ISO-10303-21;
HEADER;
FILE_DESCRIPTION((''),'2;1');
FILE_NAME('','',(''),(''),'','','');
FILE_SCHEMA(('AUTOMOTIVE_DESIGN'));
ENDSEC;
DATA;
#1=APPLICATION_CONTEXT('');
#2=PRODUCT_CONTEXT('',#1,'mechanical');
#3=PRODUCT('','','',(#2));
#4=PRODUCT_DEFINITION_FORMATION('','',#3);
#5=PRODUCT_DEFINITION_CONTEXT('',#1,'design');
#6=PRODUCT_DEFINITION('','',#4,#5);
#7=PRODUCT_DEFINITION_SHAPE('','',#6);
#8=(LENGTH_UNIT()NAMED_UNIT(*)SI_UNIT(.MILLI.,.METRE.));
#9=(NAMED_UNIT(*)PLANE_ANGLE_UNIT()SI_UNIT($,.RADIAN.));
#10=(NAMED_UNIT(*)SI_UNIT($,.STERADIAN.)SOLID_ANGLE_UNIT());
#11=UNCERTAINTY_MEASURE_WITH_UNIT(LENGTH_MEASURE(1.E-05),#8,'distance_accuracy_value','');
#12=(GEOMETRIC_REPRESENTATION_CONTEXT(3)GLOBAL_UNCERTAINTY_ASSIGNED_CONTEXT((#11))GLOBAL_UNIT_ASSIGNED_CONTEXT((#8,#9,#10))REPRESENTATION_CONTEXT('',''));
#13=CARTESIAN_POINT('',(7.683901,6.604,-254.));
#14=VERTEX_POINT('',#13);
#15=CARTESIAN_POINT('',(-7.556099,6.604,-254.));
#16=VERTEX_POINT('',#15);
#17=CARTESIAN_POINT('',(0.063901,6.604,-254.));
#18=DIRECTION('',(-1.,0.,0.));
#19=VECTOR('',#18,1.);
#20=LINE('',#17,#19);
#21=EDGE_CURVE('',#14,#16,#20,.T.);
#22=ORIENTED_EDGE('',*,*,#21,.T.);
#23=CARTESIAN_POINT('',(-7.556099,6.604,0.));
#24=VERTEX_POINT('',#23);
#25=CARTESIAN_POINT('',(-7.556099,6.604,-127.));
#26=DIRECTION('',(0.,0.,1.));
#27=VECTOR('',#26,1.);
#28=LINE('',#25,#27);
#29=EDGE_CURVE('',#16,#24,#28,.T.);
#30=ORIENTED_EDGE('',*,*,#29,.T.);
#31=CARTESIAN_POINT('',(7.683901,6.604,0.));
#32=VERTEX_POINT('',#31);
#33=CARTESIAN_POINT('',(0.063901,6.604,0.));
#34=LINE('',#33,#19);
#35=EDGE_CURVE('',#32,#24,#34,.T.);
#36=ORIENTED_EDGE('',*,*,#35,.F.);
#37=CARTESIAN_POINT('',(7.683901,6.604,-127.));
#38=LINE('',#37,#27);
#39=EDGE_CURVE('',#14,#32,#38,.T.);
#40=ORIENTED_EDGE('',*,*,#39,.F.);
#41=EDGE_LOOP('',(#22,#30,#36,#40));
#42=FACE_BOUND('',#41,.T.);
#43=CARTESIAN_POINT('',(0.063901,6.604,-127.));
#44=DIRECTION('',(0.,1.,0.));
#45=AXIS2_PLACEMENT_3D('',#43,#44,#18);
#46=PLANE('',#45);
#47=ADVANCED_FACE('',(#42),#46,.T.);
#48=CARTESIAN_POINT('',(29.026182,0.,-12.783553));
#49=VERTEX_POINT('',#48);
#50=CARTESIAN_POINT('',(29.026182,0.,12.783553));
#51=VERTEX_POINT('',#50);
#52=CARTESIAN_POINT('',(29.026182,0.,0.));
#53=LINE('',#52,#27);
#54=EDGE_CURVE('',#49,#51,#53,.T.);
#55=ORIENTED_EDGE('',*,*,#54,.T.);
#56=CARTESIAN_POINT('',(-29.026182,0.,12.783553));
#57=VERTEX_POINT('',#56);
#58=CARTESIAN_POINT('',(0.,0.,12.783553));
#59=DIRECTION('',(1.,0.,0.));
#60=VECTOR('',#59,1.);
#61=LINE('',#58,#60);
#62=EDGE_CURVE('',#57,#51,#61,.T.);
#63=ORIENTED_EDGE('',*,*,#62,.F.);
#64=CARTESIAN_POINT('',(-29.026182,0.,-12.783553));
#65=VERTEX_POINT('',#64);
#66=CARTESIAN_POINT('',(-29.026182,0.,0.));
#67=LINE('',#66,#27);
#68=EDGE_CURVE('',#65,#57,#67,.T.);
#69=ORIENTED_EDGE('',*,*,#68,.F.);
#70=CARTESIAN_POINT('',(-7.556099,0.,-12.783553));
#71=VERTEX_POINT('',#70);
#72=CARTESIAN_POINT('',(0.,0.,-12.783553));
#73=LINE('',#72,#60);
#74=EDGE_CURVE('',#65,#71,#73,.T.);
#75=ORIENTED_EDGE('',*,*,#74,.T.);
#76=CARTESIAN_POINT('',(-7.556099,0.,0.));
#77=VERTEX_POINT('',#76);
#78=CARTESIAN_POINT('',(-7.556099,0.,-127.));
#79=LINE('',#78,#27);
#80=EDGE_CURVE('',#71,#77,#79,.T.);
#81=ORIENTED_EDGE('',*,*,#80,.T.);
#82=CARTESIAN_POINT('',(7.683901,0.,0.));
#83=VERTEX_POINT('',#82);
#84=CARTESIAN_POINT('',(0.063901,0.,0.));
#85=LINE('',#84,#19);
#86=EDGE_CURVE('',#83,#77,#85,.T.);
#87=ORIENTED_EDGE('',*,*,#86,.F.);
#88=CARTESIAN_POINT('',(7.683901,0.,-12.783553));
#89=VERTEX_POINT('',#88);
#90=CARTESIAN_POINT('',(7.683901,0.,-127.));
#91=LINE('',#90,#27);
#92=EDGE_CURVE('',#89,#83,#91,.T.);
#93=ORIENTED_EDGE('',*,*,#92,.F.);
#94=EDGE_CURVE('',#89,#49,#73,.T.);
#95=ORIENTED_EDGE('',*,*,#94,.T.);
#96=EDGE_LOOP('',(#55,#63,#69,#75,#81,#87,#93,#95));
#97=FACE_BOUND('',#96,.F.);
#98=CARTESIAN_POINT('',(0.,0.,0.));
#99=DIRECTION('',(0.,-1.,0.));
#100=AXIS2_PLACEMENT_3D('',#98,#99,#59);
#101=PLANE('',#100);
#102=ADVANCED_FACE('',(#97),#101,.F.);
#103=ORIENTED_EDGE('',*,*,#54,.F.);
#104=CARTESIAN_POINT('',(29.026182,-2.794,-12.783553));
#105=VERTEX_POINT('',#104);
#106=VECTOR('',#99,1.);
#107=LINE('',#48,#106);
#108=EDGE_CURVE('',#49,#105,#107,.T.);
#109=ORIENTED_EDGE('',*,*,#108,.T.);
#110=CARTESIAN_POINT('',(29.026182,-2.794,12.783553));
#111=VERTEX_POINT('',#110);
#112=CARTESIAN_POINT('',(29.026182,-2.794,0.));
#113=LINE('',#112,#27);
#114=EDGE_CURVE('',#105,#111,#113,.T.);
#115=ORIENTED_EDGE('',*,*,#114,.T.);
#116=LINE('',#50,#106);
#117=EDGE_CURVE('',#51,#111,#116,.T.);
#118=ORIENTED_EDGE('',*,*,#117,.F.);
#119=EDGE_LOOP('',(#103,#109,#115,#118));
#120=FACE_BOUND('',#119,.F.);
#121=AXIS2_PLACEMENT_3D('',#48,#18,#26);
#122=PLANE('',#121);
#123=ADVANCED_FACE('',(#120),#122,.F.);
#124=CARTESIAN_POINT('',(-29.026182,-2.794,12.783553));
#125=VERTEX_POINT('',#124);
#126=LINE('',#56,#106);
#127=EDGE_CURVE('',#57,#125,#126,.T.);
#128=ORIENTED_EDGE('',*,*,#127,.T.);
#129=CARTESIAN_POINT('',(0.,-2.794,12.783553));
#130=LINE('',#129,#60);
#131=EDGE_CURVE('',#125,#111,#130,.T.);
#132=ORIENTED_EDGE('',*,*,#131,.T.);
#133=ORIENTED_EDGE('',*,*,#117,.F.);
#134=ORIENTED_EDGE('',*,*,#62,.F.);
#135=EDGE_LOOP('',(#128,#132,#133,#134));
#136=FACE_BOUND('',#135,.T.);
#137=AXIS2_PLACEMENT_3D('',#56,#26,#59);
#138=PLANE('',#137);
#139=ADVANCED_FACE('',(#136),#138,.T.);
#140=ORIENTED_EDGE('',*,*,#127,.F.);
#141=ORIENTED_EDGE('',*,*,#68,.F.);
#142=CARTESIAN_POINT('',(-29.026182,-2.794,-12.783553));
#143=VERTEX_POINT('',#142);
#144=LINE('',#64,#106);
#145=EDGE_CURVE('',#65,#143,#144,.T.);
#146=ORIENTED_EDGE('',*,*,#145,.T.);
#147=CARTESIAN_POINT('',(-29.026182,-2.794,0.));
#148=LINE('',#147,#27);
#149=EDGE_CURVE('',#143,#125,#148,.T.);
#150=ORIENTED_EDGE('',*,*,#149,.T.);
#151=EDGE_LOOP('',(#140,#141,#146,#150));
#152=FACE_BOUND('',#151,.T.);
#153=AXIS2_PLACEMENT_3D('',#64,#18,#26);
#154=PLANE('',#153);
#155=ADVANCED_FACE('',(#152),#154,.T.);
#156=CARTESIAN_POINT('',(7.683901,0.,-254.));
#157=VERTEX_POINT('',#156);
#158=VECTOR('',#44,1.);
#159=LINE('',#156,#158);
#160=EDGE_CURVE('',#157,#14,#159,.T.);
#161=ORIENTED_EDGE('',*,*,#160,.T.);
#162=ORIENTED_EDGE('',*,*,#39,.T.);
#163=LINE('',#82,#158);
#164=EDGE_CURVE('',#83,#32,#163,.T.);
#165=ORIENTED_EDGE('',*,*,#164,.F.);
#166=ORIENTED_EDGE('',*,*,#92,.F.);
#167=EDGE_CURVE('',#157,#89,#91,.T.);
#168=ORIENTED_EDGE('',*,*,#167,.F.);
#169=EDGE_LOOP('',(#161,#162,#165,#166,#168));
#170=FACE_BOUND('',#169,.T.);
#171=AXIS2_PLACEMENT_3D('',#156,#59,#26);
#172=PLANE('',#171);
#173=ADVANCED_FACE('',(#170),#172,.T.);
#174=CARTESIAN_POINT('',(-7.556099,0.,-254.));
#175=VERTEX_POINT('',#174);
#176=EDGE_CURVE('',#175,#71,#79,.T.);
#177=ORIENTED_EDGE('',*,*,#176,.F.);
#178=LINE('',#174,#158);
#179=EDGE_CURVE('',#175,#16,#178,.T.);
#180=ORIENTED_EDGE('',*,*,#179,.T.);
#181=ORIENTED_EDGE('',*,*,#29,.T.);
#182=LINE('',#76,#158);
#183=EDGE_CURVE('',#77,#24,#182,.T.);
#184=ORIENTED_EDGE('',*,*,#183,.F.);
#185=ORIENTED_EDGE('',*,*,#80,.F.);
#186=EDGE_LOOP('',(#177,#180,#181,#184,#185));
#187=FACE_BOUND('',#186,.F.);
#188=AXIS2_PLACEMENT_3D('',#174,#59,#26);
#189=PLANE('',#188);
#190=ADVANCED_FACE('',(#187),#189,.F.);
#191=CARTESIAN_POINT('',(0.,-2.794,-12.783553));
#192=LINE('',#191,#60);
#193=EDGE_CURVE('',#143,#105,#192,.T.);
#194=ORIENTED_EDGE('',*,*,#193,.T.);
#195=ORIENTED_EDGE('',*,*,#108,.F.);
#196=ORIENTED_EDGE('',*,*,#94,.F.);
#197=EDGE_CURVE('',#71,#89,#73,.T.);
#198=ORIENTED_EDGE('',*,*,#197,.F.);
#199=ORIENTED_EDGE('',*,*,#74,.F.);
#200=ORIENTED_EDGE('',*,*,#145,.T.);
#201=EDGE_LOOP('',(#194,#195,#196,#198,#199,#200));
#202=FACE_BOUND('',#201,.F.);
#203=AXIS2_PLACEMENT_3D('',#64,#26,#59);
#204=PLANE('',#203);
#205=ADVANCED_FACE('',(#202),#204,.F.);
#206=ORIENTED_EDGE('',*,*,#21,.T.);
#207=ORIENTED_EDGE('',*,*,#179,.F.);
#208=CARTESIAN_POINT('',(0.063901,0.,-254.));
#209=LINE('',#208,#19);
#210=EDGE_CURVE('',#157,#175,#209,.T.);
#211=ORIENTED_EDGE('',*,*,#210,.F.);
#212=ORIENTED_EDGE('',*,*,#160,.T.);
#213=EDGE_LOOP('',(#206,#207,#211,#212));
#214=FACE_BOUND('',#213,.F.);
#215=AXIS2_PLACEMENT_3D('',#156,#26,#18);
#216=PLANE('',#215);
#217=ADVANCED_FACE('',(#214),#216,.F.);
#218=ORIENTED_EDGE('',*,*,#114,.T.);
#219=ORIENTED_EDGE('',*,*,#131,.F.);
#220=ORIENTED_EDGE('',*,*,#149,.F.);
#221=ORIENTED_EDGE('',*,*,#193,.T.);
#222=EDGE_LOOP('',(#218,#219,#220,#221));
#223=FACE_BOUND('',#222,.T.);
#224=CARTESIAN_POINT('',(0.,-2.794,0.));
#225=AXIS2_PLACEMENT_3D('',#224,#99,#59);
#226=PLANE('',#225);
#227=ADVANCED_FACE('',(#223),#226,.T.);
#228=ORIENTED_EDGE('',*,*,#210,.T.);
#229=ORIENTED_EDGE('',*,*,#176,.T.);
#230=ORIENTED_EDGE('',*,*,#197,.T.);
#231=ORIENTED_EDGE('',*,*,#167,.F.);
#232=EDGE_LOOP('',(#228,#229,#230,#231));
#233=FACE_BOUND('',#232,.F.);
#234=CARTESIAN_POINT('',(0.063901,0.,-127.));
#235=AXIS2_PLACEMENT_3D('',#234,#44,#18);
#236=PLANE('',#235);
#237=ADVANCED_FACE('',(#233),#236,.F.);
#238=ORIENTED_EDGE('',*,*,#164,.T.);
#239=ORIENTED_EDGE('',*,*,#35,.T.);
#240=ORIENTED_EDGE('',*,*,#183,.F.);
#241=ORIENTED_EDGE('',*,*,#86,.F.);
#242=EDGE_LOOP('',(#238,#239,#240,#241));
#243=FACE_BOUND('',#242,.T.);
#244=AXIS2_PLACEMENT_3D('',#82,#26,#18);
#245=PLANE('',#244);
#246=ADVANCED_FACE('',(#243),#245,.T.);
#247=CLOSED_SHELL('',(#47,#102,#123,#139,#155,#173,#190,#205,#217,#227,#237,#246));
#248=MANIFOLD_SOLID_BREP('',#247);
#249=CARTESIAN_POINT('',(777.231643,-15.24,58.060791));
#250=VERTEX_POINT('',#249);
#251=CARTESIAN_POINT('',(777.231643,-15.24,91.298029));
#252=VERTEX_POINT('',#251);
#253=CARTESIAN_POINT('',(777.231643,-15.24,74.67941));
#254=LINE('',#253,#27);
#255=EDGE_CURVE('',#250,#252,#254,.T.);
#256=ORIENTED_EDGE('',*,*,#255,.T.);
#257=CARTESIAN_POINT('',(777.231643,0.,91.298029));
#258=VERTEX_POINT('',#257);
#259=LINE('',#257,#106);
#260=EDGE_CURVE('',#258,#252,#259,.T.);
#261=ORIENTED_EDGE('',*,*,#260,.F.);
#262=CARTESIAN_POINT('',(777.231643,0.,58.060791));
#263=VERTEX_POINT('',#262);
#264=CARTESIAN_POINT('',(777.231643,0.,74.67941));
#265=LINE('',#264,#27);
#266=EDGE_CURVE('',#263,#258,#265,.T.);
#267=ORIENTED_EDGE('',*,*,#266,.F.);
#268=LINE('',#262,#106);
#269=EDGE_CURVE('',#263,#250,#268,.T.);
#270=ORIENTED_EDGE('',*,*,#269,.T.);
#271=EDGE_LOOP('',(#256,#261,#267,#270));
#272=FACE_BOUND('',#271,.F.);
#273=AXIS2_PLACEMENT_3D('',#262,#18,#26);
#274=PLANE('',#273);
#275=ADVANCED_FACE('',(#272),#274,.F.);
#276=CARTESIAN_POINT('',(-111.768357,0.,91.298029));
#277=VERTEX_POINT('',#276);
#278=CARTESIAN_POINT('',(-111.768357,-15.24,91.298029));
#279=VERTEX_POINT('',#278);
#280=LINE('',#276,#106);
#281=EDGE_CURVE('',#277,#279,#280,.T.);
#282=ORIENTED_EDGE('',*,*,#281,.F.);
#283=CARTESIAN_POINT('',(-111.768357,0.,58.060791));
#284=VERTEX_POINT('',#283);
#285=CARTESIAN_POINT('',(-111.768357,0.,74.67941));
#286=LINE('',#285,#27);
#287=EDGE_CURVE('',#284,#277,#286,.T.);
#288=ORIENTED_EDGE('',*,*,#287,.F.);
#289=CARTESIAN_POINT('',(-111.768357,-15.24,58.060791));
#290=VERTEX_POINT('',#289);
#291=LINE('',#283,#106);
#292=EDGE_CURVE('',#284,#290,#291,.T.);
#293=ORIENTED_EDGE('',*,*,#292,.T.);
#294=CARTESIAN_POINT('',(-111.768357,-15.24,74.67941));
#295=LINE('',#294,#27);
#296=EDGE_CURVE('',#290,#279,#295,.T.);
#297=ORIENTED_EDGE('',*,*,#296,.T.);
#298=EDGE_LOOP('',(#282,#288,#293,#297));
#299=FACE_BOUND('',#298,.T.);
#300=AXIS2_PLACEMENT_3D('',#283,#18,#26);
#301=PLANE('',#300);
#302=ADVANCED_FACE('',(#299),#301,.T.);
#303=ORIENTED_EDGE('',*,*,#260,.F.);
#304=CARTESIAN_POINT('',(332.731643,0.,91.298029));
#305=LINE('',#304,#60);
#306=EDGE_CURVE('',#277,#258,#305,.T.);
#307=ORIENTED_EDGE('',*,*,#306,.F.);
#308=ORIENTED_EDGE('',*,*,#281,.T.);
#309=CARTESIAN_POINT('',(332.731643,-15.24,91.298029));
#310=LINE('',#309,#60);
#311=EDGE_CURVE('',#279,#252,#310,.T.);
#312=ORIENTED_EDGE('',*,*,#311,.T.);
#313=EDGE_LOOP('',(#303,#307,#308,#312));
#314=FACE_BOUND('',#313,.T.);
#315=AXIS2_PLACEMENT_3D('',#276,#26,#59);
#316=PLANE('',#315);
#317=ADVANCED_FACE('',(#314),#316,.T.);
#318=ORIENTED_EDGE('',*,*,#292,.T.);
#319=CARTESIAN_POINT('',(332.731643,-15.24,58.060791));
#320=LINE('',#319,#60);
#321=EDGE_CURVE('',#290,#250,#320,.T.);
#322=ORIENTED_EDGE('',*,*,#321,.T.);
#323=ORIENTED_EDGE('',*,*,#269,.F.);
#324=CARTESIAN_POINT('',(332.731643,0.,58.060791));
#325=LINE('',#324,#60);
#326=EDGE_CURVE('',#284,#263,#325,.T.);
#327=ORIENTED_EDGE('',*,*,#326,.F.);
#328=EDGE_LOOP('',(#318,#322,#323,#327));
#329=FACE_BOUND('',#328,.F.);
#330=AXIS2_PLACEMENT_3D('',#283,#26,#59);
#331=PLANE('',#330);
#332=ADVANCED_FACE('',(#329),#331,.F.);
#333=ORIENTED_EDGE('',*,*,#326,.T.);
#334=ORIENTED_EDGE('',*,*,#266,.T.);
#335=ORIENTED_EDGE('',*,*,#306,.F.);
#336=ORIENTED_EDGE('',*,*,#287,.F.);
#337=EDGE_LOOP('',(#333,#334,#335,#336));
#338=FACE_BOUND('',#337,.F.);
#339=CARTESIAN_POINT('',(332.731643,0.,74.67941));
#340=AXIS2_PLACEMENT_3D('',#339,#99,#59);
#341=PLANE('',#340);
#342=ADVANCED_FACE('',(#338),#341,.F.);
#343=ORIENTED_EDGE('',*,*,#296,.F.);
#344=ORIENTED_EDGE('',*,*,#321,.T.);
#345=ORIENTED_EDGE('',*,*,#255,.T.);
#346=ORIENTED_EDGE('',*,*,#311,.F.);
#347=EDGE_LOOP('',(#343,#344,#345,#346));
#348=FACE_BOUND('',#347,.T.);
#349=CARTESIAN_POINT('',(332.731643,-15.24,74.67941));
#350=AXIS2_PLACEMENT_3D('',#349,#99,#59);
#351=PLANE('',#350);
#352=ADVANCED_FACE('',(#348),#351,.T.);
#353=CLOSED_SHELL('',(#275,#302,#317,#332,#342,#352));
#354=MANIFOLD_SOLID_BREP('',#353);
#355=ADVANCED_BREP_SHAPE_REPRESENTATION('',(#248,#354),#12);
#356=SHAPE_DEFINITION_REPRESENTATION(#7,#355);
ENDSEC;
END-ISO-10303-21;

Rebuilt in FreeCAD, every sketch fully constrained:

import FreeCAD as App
import Part
import Sketcher
Q = App.Units.Quantity

doc = App.newDocument("Part")
body = doc.addObject("PartDesign::Body", "Body")

# Sketch on XZ plane
sketch1 = body.newObject("Sketcher::SketchObject", "Sketch")
sketch1.AttachmentSupport = (doc.getObject("XZ_Plane"), [""])
sketch1.MapMode = "FlatFace"
sketch1.addGeometry([
    Part.LineSegment(App.Vector(-29.026182, 12.783553, 0), App.Vector(-29.026182, -12.783553, 0)),
    Part.LineSegment(App.Vector(-29.026182, -12.783553, 0), App.Vector(29.026182, -12.783553, 0)),
    Part.LineSegment(App.Vector(29.026182, -12.783553, 0), App.Vector(29.026182, 12.783553, 0)),
    Part.LineSegment(App.Vector(29.026182, 12.783553, 0), App.Vector(-29.026182, 12.783553, 0)),
], False)
sketch1.addConstraint([
    Sketcher.Constraint("Coincident", 0, 2, 1, 1),
    Sketcher.Constraint("Coincident", 1, 2, 2, 1),
    Sketcher.Constraint("Coincident", 2, 2, 3, 1),
    Sketcher.Constraint("Coincident", 3, 2, 0, 1),
    Sketcher.Constraint("Vertical", 0),
    Sketcher.Constraint("Horizontal", 1),
    Sketcher.Constraint("Vertical", 2),
    Sketcher.Constraint("Horizontal", 3),
    Sketcher.Constraint("Symmetric", 0, 2, 2, 2, -1, 1),
    Sketcher.Constraint("DistanceX", 1, 1, 1, 2, 58.052364),
    Sketcher.Constraint("DistanceY", 0, 2, 0, 1, 25.567106),
])
pad1 = body.newObject("PartDesign::Pad", "Pad")
pad1.Profile = sketch1
pad1.Length = Q("0.11 in")

# Sketch on XZ plane
sketch2 = body.newObject("Sketcher::SketchObject", "Sketch001")
sketch2.AttachmentSupport = (doc.getObject("XZ_Plane"), [""])
sketch2.MapMode = "FlatFace"
sketch2.addGeometry([
    Part.LineSegment(App.Vector(7.683901, 0, 0), App.Vector(7.683901, -254, 0)),
    Part.LineSegment(App.Vector(7.683901, -254, 0), App.Vector(-7.556099, -254, 0)),
    Part.LineSegment(App.Vector(-7.556099, -254, 0), App.Vector(-7.556099, 0, 0)),
    Part.LineSegment(App.Vector(-7.556099, 0, 0), App.Vector(7.683901, 0, 0)),
], False)
sketch2.addConstraint([
    Sketcher.Constraint("Coincident", 0, 2, 1, 1),
    Sketcher.Constraint("Coincident", 1, 2, 2, 1),
    Sketcher.Constraint("Coincident", 2, 2, 3, 1),
    Sketcher.Constraint("Coincident", 3, 2, 0, 1),
    Sketcher.Constraint("Vertical", 0),
    Sketcher.Constraint("Horizontal", 1),
    Sketcher.Constraint("Vertical", 2),
    Sketcher.Constraint("Horizontal", 3),
    Sketcher.Constraint("PointOnObject", 2, 2, -1),
    Sketcher.Constraint("DistanceY", 0, 2, 0, 1, Q("10 in")),
    Sketcher.Constraint("DistanceX", 1, 2, 1, 1, Q("0.6 in")),
    Sketcher.Constraint("DistanceX", -1, 1, 0, 2, 7.683901),
])
pad2 = body.newObject("PartDesign::Pad", "Pad001")
pad2.Profile = sketch2
pad2.Length = Q("0.26 in")
pad2.Reversed = True
body2 = doc.addObject("PartDesign::Body", "Body001")

# Sketch on XZ plane
sketch3 = body2.newObject("Sketcher::SketchObject", "Sketch002")
sketch3.AttachmentSupport = (doc.getObject("XZ_Plane001"), [""])
sketch3.MapMode = "FlatFace"
sketch3.addGeometry([
    Part.LineSegment(App.Vector(-111.768357, 91.298029, 0), App.Vector(-111.768357, 58.060791, 0)),
    Part.LineSegment(App.Vector(-111.768357, 58.060791, 0), App.Vector(777.231643, 58.060791, 0)),
    Part.LineSegment(App.Vector(777.231643, 58.060791, 0), App.Vector(777.231643, 91.298029, 0)),
    Part.LineSegment(App.Vector(777.231643, 91.298029, 0), App.Vector(-111.768357, 91.298029, 0)),
], False)
sketch3.addConstraint([
    Sketcher.Constraint("Coincident", 0, 2, 1, 1),
    Sketcher.Constraint("Coincident", 1, 2, 2, 1),
    Sketcher.Constraint("Coincident", 2, 2, 3, 1),
    Sketcher.Constraint("Coincident", 3, 2, 0, 1),
    Sketcher.Constraint("Vertical", 0),
    Sketcher.Constraint("Horizontal", 1),
    Sketcher.Constraint("Vertical", 2),
    Sketcher.Constraint("Horizontal", 3),
    Sketcher.Constraint("DistanceX", 1, 1, 1, 2, Q("35 in")),
    Sketcher.Constraint("DistanceY", 0, 2, 0, 1, 33.237238),
    Sketcher.Constraint("DistanceY", -1, 1, 0, 2, 58.060791),
    Sketcher.Constraint("DistanceX", 0, 2, -1, 1, 111.768357),
])
pad3 = body2.newObject("PartDesign::Pad", "Pad002")
pad3.Profile = sketch3
pad3.Length = Q("0.6 in")

doc.recompute()
